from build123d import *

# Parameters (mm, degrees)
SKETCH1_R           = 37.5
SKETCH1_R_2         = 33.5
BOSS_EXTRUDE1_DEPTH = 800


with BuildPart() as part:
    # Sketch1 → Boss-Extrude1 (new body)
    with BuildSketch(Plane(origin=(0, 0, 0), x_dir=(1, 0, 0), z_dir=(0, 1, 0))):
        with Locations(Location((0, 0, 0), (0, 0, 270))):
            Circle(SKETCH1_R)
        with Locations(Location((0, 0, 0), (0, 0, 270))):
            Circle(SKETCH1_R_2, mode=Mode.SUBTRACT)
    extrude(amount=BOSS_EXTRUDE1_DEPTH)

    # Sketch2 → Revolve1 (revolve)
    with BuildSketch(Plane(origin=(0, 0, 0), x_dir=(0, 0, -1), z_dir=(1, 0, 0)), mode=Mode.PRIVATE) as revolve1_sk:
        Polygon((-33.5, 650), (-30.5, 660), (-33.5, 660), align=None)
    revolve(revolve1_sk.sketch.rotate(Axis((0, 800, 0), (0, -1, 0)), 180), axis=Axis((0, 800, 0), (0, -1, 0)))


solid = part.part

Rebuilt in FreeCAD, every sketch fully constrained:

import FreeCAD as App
import Part
import Sketcher

V = App.Vector


def add_polygon(sketch, points):
    """Adds a closed chain of lines whose ends are joined by coincident constraints."""
    first, n = sketch.GeometryCount, len(points)
    for a, b in zip(points, points[1:] + points[:1]):
        sketch.addGeometry(Part.LineSegment(App.Vector(*a, 0), App.Vector(*b, 0)), False)
    for i in range(n):
        sketch.addConstraint(Sketcher.Constraint("Coincident", first + i, 2, first + (i + 1) % n, 1))

doc = App.newDocument("Part")
body = doc.addObject("PartDesign::Body", "Body")

# Sketch on XZ plane
sketch1 = body.newObject("Sketcher::SketchObject", "Sketch")
sketch1.AttachmentSupport = (doc.getObject("XZ_Plane"), [""])
sketch1.MapMode = "FlatFace"
sketch1.addGeometry([
    Part.Circle(V(0, 0, 0), V(0, 0, 1), 38),
    Part.Circle(V(0, 0, 0), V(0, 0, 1), 34),
], False)
sketch1.addConstraint([
    Sketcher.Constraint("Coincident", 0, 3, -1, 1),
    Sketcher.Constraint("Coincident", 1, 3, -1, 1),
    Sketcher.Constraint("Diameter", 0, 75.0),
    Sketcher.Constraint("Diameter", 1, 67.0),
])
pad1 = body.newObject("PartDesign::Pad", "Pad")
pad1.Profile = sketch1
pad1.Length = 800
pad1.Reversed = True

# Sketch on YZ plane
sketch2 = body.newObject("Sketcher::SketchObject", "Sketch001")
sketch2.AttachmentSupport = (doc.getObject("YZ_Plane"), [""])
sketch2.MapMode = "FlatFace"
add_polygon(sketch2, [(650, 33.5), (660, 30.5), (660, 33.5)])  # lines 0-2
sketch2.addConstraint([
    Sketcher.Constraint("Vertical", 1),
    Sketcher.Constraint("Horizontal", 2),
    Sketcher.Constraint("DistanceX", 2, 2, 2, 1, 10.0),
    Sketcher.Constraint("DistanceY", 1, 1, 1, 2, 3.0),
    Sketcher.Constraint("DistanceX", -1, 1, 0, 2, 660.0),
    Sketcher.Constraint("DistanceY", -1, 1, 0, 2, 30.5),
])
revolution = body.newObject("PartDesign::Revolution", "Revolution")
revolution.Profile = sketch2
revolution.ReferenceAxis = (sketch2, ["H_Axis"])
revolution.Angle = 360

doc.recompute()
